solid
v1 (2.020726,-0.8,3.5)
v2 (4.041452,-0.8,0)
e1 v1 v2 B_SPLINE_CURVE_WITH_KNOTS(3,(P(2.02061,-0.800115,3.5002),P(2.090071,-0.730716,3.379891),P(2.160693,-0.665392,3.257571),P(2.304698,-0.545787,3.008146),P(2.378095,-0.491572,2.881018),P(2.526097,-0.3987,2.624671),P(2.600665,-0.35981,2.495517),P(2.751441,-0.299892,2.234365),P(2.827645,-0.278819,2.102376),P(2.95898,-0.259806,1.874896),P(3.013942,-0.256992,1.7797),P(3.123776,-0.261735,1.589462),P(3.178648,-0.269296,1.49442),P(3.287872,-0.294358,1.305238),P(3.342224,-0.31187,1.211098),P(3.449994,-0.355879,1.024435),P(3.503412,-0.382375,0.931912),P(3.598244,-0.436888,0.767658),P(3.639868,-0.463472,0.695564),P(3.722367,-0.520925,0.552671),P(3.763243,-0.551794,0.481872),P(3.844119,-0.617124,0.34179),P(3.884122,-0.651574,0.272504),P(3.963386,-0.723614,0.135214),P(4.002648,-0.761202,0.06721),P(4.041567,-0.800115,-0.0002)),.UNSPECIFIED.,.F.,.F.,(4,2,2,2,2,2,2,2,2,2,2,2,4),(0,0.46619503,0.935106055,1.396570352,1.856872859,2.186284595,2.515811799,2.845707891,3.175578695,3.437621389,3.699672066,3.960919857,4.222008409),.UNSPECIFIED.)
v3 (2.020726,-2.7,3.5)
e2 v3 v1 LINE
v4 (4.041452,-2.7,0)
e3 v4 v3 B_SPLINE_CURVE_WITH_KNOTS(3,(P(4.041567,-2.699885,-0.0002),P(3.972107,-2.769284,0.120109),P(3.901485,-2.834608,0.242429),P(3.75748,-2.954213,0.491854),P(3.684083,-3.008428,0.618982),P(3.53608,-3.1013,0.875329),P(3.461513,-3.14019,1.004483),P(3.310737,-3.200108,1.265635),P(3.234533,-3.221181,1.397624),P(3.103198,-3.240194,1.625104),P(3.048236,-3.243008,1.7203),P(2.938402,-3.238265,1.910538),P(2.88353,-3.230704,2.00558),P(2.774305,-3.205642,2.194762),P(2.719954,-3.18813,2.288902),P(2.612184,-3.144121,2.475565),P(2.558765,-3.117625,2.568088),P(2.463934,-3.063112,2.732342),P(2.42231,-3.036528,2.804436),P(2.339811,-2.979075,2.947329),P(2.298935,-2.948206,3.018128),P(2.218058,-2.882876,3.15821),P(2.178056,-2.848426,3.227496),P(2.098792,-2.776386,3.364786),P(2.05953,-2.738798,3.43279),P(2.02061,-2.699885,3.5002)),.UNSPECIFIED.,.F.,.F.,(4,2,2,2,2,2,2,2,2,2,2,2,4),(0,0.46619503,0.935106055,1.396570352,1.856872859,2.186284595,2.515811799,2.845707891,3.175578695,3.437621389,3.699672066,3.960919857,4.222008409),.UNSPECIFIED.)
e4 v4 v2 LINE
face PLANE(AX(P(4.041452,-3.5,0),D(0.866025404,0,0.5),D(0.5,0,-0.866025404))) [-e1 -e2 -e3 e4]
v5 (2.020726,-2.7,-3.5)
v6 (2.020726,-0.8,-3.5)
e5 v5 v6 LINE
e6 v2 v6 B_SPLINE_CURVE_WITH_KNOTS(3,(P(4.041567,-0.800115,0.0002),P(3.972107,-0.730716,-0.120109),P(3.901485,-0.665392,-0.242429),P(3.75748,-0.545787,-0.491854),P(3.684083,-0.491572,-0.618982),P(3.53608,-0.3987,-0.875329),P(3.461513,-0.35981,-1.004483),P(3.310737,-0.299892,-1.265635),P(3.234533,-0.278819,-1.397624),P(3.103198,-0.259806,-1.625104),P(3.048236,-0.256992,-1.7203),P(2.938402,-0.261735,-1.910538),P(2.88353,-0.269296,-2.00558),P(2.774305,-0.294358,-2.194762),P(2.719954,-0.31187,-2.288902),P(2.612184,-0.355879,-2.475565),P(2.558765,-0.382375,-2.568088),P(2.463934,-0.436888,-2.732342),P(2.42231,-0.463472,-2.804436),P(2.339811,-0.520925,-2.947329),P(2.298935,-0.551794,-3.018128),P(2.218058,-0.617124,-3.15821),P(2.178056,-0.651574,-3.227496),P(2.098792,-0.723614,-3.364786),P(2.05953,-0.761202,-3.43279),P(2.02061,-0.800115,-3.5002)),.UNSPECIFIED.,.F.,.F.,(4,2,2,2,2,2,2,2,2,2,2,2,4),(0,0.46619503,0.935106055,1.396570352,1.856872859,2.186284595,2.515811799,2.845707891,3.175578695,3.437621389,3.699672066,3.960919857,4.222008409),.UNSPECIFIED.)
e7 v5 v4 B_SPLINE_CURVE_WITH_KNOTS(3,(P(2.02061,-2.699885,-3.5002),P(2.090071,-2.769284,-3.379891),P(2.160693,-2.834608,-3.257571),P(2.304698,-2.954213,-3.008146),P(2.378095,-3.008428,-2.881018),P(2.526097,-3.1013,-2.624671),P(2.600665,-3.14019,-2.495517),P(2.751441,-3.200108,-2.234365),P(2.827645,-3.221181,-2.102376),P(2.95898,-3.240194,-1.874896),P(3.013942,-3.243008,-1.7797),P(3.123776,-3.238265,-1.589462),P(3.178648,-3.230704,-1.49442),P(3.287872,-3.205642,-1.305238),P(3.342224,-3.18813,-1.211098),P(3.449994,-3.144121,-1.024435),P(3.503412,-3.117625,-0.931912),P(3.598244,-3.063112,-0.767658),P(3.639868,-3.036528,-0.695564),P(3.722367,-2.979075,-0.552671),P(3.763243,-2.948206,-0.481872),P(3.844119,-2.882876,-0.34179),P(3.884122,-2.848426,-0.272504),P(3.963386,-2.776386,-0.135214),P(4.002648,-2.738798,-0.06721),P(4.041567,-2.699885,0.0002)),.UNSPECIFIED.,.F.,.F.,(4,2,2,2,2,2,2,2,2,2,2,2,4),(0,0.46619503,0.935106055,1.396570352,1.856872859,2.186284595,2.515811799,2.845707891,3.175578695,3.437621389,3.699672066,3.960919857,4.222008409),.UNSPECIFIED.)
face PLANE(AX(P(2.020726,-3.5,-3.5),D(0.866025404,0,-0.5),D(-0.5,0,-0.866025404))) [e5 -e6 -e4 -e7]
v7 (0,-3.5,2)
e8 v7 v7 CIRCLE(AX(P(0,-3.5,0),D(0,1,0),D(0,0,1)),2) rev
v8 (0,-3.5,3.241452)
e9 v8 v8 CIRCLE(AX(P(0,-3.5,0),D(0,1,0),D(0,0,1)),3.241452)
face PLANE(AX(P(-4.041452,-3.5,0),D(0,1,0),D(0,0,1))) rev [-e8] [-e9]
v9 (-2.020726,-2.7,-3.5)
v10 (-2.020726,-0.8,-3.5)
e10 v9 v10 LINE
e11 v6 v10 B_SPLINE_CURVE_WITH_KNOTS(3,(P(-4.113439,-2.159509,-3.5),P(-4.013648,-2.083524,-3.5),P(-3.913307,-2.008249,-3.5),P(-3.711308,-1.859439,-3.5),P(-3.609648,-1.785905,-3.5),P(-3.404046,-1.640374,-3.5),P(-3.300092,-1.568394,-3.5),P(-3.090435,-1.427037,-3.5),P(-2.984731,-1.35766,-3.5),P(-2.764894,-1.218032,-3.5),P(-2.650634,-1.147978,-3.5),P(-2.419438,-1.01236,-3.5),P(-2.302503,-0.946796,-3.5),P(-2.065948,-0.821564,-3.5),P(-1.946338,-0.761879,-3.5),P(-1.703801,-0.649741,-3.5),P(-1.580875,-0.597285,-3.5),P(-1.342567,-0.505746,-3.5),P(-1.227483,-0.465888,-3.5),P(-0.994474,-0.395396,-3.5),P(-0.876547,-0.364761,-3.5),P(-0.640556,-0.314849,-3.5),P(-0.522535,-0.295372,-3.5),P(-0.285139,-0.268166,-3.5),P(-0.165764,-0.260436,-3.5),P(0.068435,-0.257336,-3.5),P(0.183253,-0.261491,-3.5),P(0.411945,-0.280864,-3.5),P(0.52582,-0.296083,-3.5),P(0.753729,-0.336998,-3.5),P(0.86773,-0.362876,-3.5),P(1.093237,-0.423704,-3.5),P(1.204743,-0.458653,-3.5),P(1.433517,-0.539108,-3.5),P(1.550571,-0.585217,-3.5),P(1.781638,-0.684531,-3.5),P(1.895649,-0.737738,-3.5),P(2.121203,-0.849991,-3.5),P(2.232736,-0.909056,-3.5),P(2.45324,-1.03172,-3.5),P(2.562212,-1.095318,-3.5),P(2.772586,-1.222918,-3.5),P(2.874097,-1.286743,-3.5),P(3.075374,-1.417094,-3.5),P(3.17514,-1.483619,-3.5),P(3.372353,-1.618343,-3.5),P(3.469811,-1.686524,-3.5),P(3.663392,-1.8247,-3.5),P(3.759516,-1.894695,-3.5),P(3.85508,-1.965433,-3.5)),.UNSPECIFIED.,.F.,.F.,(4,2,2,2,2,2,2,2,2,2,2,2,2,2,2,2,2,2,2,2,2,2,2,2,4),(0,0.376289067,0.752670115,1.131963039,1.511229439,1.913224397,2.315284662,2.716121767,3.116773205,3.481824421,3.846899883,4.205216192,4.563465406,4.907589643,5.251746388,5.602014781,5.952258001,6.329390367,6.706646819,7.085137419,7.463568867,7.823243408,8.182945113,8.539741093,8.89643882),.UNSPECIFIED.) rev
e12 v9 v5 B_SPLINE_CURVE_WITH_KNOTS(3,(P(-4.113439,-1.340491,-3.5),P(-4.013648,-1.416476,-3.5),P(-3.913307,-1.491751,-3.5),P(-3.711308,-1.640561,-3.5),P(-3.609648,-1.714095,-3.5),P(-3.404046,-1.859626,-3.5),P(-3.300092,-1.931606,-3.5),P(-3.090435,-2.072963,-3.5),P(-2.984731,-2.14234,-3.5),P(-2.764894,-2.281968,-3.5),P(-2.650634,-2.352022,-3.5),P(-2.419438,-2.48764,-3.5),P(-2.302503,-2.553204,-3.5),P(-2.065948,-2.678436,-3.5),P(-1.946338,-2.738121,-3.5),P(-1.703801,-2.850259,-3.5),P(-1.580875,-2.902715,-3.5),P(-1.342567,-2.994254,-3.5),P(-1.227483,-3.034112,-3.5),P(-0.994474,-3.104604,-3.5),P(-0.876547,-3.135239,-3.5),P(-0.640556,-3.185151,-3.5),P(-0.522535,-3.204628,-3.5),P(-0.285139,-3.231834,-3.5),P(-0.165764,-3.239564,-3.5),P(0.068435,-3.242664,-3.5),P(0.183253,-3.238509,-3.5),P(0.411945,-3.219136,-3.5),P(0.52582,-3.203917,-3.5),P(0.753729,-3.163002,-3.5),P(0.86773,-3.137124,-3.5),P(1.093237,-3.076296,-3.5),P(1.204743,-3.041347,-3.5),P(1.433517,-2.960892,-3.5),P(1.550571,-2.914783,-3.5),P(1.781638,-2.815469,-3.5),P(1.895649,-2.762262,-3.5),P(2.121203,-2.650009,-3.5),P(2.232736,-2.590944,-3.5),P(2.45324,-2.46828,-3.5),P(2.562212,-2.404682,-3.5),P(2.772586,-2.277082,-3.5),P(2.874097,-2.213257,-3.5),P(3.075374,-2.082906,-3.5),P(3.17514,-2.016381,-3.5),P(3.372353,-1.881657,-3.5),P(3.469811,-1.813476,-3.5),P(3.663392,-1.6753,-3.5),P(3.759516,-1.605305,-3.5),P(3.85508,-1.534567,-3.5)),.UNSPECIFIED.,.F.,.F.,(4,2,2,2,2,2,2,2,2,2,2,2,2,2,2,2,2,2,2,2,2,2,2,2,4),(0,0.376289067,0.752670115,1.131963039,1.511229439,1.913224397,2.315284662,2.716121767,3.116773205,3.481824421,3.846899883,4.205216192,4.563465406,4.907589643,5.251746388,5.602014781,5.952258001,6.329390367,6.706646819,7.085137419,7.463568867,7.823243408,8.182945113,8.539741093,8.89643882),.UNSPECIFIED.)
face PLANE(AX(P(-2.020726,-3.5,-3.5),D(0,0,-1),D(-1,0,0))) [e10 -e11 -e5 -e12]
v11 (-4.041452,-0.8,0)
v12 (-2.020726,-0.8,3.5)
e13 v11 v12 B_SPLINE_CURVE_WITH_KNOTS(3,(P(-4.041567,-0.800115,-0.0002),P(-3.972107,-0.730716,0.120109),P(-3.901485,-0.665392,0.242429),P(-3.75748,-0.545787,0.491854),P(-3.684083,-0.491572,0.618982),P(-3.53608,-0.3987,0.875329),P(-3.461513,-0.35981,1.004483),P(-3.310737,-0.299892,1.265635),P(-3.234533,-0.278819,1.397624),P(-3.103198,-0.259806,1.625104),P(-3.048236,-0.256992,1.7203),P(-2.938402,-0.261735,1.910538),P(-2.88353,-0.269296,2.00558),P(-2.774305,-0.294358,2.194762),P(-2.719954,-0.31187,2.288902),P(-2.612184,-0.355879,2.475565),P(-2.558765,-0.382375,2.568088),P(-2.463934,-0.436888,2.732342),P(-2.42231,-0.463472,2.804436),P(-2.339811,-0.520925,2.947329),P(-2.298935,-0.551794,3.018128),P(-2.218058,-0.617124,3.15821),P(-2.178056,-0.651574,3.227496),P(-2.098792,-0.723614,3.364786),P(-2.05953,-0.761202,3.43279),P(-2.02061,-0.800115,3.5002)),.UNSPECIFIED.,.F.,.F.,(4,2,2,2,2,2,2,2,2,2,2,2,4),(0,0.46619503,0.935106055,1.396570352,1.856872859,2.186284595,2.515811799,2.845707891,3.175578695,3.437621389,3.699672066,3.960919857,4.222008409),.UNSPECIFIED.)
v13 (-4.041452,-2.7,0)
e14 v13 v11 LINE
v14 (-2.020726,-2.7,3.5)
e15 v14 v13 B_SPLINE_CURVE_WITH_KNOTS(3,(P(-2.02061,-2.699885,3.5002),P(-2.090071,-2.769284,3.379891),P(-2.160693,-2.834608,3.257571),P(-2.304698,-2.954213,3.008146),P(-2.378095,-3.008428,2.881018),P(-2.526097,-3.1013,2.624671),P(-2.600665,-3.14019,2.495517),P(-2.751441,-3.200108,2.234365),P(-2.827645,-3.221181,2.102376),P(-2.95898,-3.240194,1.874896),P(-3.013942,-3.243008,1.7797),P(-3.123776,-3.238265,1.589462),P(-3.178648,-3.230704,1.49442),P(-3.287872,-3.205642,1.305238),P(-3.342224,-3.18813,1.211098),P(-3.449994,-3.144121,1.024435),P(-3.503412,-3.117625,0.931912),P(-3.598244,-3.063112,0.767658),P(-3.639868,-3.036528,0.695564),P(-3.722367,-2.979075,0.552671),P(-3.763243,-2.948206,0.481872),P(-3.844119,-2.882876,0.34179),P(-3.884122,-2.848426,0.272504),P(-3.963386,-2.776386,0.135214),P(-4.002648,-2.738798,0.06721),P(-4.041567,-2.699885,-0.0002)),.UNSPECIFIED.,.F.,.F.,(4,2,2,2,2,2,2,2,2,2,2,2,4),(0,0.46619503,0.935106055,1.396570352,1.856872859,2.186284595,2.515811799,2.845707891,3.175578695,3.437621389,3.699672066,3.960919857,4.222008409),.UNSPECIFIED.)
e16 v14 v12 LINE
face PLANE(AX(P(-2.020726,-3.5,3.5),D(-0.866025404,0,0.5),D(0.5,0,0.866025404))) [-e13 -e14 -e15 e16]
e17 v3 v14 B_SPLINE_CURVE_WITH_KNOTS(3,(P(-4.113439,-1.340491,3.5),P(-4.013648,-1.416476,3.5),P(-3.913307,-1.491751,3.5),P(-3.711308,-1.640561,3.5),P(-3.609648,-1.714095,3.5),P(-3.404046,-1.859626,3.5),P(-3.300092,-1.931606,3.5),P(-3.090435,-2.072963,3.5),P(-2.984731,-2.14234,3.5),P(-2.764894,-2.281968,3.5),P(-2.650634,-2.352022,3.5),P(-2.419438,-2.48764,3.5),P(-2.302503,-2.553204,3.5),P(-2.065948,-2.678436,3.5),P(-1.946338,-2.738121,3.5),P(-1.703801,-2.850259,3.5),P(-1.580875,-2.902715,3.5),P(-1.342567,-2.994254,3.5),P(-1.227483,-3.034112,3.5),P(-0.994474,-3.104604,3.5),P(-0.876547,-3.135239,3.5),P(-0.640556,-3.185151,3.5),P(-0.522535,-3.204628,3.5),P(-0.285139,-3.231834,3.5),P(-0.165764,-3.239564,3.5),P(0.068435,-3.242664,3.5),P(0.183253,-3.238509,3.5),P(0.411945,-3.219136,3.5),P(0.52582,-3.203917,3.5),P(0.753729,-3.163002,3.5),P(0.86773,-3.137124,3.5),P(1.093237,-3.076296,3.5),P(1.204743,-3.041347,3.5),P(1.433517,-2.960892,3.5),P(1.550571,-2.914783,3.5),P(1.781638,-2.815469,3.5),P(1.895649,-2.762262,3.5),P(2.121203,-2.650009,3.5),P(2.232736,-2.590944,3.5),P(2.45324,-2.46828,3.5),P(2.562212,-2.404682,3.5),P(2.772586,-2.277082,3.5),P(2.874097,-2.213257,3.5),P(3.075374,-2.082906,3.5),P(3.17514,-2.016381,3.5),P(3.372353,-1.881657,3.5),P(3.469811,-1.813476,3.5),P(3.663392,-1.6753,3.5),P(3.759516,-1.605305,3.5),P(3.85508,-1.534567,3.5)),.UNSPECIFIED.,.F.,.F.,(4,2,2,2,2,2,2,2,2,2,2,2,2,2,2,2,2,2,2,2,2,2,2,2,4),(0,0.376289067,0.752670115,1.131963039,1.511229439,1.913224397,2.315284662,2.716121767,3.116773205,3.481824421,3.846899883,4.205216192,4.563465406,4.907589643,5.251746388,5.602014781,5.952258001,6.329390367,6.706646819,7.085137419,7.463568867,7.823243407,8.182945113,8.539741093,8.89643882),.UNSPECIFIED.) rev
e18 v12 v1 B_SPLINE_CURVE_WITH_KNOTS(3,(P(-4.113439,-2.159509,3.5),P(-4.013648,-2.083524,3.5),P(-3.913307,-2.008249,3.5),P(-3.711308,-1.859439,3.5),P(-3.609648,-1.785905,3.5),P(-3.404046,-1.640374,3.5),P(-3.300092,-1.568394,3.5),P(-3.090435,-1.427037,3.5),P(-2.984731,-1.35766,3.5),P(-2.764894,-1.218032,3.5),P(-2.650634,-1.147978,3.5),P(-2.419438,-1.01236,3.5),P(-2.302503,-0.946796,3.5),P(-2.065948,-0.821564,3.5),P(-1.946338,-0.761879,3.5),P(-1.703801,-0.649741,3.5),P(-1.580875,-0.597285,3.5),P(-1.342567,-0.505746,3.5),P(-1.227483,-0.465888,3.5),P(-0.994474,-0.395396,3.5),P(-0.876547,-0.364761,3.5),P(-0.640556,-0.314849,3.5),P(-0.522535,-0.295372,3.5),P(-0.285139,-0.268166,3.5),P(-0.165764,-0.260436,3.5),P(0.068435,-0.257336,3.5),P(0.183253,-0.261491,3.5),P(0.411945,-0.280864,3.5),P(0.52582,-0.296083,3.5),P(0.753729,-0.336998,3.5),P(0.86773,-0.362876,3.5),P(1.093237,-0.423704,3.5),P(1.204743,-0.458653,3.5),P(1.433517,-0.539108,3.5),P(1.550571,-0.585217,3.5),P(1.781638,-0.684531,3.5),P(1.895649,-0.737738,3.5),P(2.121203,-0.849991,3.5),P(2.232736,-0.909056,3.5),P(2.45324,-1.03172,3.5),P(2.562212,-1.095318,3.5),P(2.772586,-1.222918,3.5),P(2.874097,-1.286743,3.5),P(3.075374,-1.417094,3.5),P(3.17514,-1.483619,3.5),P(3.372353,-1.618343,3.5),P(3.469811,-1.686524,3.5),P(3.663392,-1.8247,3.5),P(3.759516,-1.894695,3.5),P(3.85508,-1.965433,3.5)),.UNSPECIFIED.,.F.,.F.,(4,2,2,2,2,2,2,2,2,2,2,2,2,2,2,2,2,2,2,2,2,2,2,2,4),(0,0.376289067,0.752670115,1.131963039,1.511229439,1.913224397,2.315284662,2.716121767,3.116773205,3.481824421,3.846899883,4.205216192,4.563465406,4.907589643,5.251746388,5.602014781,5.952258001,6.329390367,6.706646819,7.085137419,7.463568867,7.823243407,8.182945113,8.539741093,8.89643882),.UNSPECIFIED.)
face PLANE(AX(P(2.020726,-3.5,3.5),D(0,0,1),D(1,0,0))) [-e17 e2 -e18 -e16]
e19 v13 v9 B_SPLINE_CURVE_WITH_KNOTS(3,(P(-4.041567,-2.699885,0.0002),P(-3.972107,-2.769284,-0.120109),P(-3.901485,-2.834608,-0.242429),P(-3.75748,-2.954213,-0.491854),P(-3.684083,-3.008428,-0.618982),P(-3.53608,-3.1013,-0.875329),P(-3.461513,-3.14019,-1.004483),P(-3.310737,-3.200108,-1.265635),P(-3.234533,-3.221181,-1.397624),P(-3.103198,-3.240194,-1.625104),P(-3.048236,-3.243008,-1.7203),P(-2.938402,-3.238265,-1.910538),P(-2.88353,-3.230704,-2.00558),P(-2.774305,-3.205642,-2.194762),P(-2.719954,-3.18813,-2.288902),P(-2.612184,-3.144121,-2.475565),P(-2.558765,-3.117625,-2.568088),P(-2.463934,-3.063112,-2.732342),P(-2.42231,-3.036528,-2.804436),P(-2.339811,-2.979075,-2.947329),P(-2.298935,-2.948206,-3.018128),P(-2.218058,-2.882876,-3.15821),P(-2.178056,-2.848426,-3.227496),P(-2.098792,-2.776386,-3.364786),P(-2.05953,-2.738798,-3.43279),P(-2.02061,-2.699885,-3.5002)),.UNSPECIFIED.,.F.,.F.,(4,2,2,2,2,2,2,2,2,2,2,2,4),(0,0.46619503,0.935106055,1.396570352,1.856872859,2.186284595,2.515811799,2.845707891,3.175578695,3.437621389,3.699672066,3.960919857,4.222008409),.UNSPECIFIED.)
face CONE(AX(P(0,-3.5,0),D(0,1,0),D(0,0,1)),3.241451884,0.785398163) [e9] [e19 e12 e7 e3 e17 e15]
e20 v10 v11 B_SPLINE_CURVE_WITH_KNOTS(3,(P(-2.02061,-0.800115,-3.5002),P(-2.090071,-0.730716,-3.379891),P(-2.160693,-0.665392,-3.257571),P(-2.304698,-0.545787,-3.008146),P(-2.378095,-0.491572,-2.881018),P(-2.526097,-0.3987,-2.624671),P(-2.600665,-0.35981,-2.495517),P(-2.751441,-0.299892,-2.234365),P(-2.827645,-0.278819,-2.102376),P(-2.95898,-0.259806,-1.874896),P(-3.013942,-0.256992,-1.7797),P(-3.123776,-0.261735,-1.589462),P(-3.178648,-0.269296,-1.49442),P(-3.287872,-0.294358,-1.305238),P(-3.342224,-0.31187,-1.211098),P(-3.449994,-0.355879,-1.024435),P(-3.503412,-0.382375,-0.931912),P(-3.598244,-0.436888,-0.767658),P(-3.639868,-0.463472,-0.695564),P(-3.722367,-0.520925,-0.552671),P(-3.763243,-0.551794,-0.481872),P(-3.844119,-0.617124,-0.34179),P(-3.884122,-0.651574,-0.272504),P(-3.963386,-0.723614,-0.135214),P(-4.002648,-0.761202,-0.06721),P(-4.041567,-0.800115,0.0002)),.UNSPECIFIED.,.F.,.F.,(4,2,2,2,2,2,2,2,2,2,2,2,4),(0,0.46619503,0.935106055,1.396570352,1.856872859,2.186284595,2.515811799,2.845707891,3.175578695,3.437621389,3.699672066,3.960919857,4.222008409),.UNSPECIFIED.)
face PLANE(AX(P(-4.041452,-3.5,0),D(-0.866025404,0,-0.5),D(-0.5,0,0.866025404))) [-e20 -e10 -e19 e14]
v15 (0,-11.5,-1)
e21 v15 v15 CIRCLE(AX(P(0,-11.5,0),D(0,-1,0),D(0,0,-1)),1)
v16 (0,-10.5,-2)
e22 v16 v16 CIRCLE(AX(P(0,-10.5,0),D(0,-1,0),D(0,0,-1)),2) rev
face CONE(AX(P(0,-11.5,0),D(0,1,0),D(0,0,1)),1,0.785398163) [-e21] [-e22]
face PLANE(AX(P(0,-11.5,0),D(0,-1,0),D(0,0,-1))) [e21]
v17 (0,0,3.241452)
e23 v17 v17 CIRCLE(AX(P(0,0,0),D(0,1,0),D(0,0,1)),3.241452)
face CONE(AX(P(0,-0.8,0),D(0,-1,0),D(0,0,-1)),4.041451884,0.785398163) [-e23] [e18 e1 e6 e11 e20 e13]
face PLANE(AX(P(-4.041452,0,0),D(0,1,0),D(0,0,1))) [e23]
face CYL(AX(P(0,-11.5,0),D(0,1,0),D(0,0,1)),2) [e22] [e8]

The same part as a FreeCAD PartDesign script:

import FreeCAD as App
import Part
import Sketcher
Q = App.Units.Quantity


def edges_at(feature, points):
    """Names of the edges that pass closest to the given points."""
    edges = feature.Shape.Edges
    near = lambda p: min(range(len(edges)), key=lambda i: edges[i].distToShape(Part.Vertex(*p))[0])
    return sorted({f"Edge{near(p) + 1}" for p in points})

doc = App.newDocument("Part")
body = doc.addObject("PartDesign::Body", "Body")

# Sketch on XZ plane
sketch1 = doc.addObject("Sketcher::SketchObject", "Sketch")
body.addObject(sketch1)
sketch1.AttachmentSupport = (doc.XZ_Plane, [""])
sketch1.MapMode = "FlatFace"
sketch1.addGeometry([
    Part.LineSegment(App.Vector(2.020726, -3.5, 0), App.Vector(-2.020726, -3.5, 0)),  # 0
    Part.LineSegment(App.Vector(-2.020726, -3.5, 0), App.Vector(-4.041452, 0, 0)),  # 1
    Part.LineSegment(App.Vector(-4.041452, 0, 0), App.Vector(-2.020726, 3.5, 0)),  # 2
    Part.LineSegment(App.Vector(-2.020726, 3.5, 0), App.Vector(2.020726, 3.5, 0)),  # 3
    Part.LineSegment(App.Vector(2.020726, 3.5, 0), App.Vector(4.041452, 0, 0)),  # 4
    Part.LineSegment(App.Vector(4.041452, 0, 0), App.Vector(2.020726, -3.5, 0)),  # 5
], False)
sketch1.addConstraint([
    Sketcher.Constraint("Coincident", 0, 2, 1, 1),
    Sketcher.Constraint("Coincident", 1, 2, 2, 1),
    Sketcher.Constraint("Coincident", 2, 2, 3, 1),
    Sketcher.Constraint("Coincident", 3, 2, 4, 1),
    Sketcher.Constraint("Coincident", 4, 2, 5, 1),
    Sketcher.Constraint("Coincident", 5, 2, 0, 1),
    Sketcher.Constraint("Horizontal", 0),
    Sketcher.Constraint("Horizontal", 3),
    Sketcher.Constraint("Symmetric", 0, 2, 3, 2, -1, 1),
    Sketcher.Constraint("Symmetric", 1, 2, 4, 2, -1, 1),
    Sketcher.Constraint("PointOnObject", 1, 2, -1),
    Sketcher.Constraint("Parallel", 2, 5),
    Sketcher.Constraint("Vertical", 0, 2, 2, 2),
    Sketcher.Constraint("Angle", 1, Q("120 deg")),
    Sketcher.Constraint("DistanceY", 0, 2, 2, 2, 7.0),
    Sketcher.Constraint("DistanceX", 0, 2, 0, 1, 4.041452),
])
pad1 = doc.addObject("PartDesign::Pad", "Pad")
body.addObject(pad1)
pad1.Profile = sketch1
pad1.Length = 3.5

# Sketch on XZ plane
sketch2 = doc.addObject("Sketcher::SketchObject", "Sketch001")
body.addObject(sketch2)
sketch2.AttachmentSupport = (doc.XZ_Plane, [""])
sketch2.MapMode = "FlatFace"
sketch2.AttachmentOffset = App.Placement(App.Vector(0, 0, 3.5), App.Rotation())
sketch2.addGeometry(Part.Circle(App.Vector(0, 0, 0), App.Vector(0, 0, 1), 2), False)
sketch2.addConstraint([
    Sketcher.Constraint("Coincident", 0, 3, -1, 1),
    Sketcher.Constraint("Diameter", 0, 4.0),
])
pad2 = doc.addObject("PartDesign::Pad", "Pad001")
body.addObject(pad2)
pad2.Profile = sketch2
pad2.Length = 8
doc.recompute()

chamfer = doc.addObject("PartDesign::Chamfer", "Chamfer")
body.addObject(chamfer)
chamfer.Base = (pad2, edges_at(pad2, [(0, -11.5, -2)]))
chamfer.Size = 1

# Sketch on XY plane
sketch3 = doc.addObject("Sketcher::SketchObject", "Sketch002")
body.addObject(sketch3)
sketch3.AttachmentSupport = (doc.XY_Plane, [""])
sketch3.MapMode = "FlatFace"
sketch3.addGeometry([
    Part.LineSegment(App.Vector(-4.041452, -0.8, 0), App.Vector(-3.241452, 0, 0)),  # 0
    Part.LineSegment(App.Vector(-3.241452, 0, 0), App.Vector(-4.041452, 0, 0)),  # 1
    Part.LineSegment(App.Vector(-4.041452, 0, 0), App.Vector(-4.041452, -0.8, 0)),  # 2
    Part.LineSegment(App.Vector(-3.241452, -3.5, 0), App.Vector(-4.041452, -2.7, 0)),  # 3
    Part.LineSegment(App.Vector(-4.041452, -2.7, 0), App.Vector(-4.041452, -3.5, 0)),  # 4
    Part.LineSegment(App.Vector(-4.041452, -3.5, 0), App.Vector(-3.241452, -3.5, 0)),  # 5
], False)
sketch3.addConstraint([
    Sketcher.Constraint("Coincident", 0, 2, 1, 1),
    Sketcher.Constraint("Coincident", 1, 2, 2, 1),
    Sketcher.Constraint("Coincident", 2, 2, 0, 1),
    Sketcher.Constraint("Coincident", 3, 2, 4, 1),
    Sketcher.Constraint("Coincident", 4, 2, 5, 1),
    Sketcher.Constraint("Coincident", 5, 2, 3, 1),
    Sketcher.Constraint("Horizontal", 1),
    Sketcher.Constraint("Vertical", 2),
    Sketcher.Constraint("Vertical", 4),
    Sketcher.Constraint("Horizontal", 5),
    Sketcher.Constraint("PointOnObject", 0, 2, -1),
    Sketcher.Constraint("Perpendicular", 0, 3),
    Sketcher.Constraint("Vertical", 2, 2, 3, 2),
    Sketcher.Constraint("Vertical", 0, 2, 5, 2),
    Sketcher.Constraint("Equal", 5, 2),
    Sketcher.Constraint("DistanceX", 1, 2, 1, 1, 0.8),
    Sketcher.Constraint("DistanceY", 3, 2, -1, 1, 2.7),
    Sketcher.Constraint("DistanceX", 0, 2, -1, 1, 3.241452),
])
groove = doc.addObject("PartDesign::Groove", "Groove")
body.addObject(groove)
groove.Profile = sketch3
groove.ReferenceAxis = (sketch3, ["V_Axis"])
groove.Angle = 360

doc.recompute()
